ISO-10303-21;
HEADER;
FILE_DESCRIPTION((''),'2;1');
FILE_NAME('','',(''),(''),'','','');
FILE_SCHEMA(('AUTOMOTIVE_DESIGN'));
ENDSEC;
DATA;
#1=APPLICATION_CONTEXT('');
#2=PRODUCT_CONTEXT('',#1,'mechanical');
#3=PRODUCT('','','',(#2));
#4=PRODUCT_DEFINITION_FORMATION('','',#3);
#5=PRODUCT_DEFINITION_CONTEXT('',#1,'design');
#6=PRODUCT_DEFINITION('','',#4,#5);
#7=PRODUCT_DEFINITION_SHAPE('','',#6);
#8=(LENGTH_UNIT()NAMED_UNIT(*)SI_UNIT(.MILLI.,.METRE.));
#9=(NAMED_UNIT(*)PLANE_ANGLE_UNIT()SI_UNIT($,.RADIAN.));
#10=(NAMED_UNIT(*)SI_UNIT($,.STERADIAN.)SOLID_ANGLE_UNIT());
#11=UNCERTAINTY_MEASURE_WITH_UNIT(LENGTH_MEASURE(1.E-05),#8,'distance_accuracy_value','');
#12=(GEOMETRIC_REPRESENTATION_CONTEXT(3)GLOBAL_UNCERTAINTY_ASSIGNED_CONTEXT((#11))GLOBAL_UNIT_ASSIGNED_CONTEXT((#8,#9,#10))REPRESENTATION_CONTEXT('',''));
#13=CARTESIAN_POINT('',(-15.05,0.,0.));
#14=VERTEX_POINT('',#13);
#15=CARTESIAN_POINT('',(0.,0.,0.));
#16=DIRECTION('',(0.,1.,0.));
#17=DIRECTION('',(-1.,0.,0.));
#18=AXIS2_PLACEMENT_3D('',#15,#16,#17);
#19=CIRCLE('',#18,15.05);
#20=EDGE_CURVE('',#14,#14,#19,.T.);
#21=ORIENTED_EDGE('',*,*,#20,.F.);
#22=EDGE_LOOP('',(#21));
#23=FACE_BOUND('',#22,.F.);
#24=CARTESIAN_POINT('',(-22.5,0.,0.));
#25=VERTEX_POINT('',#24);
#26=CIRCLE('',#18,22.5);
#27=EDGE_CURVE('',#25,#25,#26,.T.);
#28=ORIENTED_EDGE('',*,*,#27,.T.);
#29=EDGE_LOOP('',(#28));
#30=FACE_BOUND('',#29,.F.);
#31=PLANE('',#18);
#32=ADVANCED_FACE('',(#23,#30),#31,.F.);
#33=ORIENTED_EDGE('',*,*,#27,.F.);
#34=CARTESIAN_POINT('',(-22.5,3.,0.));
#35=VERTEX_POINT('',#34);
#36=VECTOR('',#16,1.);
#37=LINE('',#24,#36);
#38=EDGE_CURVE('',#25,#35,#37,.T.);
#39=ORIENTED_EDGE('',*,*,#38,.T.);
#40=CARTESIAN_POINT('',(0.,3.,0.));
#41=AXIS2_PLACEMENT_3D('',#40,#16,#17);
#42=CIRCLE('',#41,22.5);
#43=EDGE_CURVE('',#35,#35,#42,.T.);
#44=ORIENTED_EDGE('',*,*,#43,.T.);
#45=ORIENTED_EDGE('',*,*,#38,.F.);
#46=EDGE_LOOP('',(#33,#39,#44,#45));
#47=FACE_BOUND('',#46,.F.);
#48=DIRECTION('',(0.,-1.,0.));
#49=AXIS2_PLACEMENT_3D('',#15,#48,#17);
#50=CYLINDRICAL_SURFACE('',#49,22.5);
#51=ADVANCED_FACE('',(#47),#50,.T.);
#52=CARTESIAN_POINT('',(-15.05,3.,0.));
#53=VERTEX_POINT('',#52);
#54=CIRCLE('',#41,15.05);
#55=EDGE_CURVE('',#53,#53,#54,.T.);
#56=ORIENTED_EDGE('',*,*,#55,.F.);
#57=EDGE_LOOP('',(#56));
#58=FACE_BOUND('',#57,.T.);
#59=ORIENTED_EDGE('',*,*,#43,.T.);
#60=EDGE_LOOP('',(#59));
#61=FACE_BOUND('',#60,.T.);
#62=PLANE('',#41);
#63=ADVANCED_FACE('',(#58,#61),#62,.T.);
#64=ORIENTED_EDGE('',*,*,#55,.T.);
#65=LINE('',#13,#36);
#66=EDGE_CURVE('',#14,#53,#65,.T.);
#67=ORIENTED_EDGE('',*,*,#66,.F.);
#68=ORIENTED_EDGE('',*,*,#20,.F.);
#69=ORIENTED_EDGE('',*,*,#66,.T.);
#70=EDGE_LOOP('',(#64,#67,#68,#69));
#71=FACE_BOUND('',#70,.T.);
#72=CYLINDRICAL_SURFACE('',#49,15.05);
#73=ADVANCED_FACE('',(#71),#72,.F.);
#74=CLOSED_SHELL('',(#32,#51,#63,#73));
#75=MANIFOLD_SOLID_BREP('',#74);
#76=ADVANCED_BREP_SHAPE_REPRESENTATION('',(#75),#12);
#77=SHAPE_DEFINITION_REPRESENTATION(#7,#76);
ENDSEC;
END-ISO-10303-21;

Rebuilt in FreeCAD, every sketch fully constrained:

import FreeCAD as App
import Part
import Sketcher
from FreeCAD import Vector
Q = App.Units.Quantity

doc = App.newDocument("Part")
body = doc.addObject("PartDesign::Body", "Body")

sketch1 = body.newObject("Sketcher::SketchObject", "Sketch")
sketch1.AttachmentSupport = (doc.getObject("XZ_Plane"), [""])
sketch1.MapMode = "FlatFace"
sketch1.addGeometry([
    Part.Circle(Vector(0, 0, 0), Vector(0, 0, 1), 22),
    Part.Circle(Vector(0, 0, 0), Vector(0, 0, 1), 15),
], False)
sketch1.addConstraint([
    Sketcher.Constraint("Coincident", 0, 3, -1, 1),
    Sketcher.Constraint("Coincident", 1, 3, -1, 1),
    Sketcher.Constraint("Diameter", 0, Q("45 mm")),
    Sketcher.Constraint("Diameter", 1, Q("30.1 mm")),
])
pad1 = body.newObject("PartDesign::Pad", "Pad")
pad1.Profile = sketch1
pad1.Length = 3
pad1.Reversed = True

doc.recompute()
